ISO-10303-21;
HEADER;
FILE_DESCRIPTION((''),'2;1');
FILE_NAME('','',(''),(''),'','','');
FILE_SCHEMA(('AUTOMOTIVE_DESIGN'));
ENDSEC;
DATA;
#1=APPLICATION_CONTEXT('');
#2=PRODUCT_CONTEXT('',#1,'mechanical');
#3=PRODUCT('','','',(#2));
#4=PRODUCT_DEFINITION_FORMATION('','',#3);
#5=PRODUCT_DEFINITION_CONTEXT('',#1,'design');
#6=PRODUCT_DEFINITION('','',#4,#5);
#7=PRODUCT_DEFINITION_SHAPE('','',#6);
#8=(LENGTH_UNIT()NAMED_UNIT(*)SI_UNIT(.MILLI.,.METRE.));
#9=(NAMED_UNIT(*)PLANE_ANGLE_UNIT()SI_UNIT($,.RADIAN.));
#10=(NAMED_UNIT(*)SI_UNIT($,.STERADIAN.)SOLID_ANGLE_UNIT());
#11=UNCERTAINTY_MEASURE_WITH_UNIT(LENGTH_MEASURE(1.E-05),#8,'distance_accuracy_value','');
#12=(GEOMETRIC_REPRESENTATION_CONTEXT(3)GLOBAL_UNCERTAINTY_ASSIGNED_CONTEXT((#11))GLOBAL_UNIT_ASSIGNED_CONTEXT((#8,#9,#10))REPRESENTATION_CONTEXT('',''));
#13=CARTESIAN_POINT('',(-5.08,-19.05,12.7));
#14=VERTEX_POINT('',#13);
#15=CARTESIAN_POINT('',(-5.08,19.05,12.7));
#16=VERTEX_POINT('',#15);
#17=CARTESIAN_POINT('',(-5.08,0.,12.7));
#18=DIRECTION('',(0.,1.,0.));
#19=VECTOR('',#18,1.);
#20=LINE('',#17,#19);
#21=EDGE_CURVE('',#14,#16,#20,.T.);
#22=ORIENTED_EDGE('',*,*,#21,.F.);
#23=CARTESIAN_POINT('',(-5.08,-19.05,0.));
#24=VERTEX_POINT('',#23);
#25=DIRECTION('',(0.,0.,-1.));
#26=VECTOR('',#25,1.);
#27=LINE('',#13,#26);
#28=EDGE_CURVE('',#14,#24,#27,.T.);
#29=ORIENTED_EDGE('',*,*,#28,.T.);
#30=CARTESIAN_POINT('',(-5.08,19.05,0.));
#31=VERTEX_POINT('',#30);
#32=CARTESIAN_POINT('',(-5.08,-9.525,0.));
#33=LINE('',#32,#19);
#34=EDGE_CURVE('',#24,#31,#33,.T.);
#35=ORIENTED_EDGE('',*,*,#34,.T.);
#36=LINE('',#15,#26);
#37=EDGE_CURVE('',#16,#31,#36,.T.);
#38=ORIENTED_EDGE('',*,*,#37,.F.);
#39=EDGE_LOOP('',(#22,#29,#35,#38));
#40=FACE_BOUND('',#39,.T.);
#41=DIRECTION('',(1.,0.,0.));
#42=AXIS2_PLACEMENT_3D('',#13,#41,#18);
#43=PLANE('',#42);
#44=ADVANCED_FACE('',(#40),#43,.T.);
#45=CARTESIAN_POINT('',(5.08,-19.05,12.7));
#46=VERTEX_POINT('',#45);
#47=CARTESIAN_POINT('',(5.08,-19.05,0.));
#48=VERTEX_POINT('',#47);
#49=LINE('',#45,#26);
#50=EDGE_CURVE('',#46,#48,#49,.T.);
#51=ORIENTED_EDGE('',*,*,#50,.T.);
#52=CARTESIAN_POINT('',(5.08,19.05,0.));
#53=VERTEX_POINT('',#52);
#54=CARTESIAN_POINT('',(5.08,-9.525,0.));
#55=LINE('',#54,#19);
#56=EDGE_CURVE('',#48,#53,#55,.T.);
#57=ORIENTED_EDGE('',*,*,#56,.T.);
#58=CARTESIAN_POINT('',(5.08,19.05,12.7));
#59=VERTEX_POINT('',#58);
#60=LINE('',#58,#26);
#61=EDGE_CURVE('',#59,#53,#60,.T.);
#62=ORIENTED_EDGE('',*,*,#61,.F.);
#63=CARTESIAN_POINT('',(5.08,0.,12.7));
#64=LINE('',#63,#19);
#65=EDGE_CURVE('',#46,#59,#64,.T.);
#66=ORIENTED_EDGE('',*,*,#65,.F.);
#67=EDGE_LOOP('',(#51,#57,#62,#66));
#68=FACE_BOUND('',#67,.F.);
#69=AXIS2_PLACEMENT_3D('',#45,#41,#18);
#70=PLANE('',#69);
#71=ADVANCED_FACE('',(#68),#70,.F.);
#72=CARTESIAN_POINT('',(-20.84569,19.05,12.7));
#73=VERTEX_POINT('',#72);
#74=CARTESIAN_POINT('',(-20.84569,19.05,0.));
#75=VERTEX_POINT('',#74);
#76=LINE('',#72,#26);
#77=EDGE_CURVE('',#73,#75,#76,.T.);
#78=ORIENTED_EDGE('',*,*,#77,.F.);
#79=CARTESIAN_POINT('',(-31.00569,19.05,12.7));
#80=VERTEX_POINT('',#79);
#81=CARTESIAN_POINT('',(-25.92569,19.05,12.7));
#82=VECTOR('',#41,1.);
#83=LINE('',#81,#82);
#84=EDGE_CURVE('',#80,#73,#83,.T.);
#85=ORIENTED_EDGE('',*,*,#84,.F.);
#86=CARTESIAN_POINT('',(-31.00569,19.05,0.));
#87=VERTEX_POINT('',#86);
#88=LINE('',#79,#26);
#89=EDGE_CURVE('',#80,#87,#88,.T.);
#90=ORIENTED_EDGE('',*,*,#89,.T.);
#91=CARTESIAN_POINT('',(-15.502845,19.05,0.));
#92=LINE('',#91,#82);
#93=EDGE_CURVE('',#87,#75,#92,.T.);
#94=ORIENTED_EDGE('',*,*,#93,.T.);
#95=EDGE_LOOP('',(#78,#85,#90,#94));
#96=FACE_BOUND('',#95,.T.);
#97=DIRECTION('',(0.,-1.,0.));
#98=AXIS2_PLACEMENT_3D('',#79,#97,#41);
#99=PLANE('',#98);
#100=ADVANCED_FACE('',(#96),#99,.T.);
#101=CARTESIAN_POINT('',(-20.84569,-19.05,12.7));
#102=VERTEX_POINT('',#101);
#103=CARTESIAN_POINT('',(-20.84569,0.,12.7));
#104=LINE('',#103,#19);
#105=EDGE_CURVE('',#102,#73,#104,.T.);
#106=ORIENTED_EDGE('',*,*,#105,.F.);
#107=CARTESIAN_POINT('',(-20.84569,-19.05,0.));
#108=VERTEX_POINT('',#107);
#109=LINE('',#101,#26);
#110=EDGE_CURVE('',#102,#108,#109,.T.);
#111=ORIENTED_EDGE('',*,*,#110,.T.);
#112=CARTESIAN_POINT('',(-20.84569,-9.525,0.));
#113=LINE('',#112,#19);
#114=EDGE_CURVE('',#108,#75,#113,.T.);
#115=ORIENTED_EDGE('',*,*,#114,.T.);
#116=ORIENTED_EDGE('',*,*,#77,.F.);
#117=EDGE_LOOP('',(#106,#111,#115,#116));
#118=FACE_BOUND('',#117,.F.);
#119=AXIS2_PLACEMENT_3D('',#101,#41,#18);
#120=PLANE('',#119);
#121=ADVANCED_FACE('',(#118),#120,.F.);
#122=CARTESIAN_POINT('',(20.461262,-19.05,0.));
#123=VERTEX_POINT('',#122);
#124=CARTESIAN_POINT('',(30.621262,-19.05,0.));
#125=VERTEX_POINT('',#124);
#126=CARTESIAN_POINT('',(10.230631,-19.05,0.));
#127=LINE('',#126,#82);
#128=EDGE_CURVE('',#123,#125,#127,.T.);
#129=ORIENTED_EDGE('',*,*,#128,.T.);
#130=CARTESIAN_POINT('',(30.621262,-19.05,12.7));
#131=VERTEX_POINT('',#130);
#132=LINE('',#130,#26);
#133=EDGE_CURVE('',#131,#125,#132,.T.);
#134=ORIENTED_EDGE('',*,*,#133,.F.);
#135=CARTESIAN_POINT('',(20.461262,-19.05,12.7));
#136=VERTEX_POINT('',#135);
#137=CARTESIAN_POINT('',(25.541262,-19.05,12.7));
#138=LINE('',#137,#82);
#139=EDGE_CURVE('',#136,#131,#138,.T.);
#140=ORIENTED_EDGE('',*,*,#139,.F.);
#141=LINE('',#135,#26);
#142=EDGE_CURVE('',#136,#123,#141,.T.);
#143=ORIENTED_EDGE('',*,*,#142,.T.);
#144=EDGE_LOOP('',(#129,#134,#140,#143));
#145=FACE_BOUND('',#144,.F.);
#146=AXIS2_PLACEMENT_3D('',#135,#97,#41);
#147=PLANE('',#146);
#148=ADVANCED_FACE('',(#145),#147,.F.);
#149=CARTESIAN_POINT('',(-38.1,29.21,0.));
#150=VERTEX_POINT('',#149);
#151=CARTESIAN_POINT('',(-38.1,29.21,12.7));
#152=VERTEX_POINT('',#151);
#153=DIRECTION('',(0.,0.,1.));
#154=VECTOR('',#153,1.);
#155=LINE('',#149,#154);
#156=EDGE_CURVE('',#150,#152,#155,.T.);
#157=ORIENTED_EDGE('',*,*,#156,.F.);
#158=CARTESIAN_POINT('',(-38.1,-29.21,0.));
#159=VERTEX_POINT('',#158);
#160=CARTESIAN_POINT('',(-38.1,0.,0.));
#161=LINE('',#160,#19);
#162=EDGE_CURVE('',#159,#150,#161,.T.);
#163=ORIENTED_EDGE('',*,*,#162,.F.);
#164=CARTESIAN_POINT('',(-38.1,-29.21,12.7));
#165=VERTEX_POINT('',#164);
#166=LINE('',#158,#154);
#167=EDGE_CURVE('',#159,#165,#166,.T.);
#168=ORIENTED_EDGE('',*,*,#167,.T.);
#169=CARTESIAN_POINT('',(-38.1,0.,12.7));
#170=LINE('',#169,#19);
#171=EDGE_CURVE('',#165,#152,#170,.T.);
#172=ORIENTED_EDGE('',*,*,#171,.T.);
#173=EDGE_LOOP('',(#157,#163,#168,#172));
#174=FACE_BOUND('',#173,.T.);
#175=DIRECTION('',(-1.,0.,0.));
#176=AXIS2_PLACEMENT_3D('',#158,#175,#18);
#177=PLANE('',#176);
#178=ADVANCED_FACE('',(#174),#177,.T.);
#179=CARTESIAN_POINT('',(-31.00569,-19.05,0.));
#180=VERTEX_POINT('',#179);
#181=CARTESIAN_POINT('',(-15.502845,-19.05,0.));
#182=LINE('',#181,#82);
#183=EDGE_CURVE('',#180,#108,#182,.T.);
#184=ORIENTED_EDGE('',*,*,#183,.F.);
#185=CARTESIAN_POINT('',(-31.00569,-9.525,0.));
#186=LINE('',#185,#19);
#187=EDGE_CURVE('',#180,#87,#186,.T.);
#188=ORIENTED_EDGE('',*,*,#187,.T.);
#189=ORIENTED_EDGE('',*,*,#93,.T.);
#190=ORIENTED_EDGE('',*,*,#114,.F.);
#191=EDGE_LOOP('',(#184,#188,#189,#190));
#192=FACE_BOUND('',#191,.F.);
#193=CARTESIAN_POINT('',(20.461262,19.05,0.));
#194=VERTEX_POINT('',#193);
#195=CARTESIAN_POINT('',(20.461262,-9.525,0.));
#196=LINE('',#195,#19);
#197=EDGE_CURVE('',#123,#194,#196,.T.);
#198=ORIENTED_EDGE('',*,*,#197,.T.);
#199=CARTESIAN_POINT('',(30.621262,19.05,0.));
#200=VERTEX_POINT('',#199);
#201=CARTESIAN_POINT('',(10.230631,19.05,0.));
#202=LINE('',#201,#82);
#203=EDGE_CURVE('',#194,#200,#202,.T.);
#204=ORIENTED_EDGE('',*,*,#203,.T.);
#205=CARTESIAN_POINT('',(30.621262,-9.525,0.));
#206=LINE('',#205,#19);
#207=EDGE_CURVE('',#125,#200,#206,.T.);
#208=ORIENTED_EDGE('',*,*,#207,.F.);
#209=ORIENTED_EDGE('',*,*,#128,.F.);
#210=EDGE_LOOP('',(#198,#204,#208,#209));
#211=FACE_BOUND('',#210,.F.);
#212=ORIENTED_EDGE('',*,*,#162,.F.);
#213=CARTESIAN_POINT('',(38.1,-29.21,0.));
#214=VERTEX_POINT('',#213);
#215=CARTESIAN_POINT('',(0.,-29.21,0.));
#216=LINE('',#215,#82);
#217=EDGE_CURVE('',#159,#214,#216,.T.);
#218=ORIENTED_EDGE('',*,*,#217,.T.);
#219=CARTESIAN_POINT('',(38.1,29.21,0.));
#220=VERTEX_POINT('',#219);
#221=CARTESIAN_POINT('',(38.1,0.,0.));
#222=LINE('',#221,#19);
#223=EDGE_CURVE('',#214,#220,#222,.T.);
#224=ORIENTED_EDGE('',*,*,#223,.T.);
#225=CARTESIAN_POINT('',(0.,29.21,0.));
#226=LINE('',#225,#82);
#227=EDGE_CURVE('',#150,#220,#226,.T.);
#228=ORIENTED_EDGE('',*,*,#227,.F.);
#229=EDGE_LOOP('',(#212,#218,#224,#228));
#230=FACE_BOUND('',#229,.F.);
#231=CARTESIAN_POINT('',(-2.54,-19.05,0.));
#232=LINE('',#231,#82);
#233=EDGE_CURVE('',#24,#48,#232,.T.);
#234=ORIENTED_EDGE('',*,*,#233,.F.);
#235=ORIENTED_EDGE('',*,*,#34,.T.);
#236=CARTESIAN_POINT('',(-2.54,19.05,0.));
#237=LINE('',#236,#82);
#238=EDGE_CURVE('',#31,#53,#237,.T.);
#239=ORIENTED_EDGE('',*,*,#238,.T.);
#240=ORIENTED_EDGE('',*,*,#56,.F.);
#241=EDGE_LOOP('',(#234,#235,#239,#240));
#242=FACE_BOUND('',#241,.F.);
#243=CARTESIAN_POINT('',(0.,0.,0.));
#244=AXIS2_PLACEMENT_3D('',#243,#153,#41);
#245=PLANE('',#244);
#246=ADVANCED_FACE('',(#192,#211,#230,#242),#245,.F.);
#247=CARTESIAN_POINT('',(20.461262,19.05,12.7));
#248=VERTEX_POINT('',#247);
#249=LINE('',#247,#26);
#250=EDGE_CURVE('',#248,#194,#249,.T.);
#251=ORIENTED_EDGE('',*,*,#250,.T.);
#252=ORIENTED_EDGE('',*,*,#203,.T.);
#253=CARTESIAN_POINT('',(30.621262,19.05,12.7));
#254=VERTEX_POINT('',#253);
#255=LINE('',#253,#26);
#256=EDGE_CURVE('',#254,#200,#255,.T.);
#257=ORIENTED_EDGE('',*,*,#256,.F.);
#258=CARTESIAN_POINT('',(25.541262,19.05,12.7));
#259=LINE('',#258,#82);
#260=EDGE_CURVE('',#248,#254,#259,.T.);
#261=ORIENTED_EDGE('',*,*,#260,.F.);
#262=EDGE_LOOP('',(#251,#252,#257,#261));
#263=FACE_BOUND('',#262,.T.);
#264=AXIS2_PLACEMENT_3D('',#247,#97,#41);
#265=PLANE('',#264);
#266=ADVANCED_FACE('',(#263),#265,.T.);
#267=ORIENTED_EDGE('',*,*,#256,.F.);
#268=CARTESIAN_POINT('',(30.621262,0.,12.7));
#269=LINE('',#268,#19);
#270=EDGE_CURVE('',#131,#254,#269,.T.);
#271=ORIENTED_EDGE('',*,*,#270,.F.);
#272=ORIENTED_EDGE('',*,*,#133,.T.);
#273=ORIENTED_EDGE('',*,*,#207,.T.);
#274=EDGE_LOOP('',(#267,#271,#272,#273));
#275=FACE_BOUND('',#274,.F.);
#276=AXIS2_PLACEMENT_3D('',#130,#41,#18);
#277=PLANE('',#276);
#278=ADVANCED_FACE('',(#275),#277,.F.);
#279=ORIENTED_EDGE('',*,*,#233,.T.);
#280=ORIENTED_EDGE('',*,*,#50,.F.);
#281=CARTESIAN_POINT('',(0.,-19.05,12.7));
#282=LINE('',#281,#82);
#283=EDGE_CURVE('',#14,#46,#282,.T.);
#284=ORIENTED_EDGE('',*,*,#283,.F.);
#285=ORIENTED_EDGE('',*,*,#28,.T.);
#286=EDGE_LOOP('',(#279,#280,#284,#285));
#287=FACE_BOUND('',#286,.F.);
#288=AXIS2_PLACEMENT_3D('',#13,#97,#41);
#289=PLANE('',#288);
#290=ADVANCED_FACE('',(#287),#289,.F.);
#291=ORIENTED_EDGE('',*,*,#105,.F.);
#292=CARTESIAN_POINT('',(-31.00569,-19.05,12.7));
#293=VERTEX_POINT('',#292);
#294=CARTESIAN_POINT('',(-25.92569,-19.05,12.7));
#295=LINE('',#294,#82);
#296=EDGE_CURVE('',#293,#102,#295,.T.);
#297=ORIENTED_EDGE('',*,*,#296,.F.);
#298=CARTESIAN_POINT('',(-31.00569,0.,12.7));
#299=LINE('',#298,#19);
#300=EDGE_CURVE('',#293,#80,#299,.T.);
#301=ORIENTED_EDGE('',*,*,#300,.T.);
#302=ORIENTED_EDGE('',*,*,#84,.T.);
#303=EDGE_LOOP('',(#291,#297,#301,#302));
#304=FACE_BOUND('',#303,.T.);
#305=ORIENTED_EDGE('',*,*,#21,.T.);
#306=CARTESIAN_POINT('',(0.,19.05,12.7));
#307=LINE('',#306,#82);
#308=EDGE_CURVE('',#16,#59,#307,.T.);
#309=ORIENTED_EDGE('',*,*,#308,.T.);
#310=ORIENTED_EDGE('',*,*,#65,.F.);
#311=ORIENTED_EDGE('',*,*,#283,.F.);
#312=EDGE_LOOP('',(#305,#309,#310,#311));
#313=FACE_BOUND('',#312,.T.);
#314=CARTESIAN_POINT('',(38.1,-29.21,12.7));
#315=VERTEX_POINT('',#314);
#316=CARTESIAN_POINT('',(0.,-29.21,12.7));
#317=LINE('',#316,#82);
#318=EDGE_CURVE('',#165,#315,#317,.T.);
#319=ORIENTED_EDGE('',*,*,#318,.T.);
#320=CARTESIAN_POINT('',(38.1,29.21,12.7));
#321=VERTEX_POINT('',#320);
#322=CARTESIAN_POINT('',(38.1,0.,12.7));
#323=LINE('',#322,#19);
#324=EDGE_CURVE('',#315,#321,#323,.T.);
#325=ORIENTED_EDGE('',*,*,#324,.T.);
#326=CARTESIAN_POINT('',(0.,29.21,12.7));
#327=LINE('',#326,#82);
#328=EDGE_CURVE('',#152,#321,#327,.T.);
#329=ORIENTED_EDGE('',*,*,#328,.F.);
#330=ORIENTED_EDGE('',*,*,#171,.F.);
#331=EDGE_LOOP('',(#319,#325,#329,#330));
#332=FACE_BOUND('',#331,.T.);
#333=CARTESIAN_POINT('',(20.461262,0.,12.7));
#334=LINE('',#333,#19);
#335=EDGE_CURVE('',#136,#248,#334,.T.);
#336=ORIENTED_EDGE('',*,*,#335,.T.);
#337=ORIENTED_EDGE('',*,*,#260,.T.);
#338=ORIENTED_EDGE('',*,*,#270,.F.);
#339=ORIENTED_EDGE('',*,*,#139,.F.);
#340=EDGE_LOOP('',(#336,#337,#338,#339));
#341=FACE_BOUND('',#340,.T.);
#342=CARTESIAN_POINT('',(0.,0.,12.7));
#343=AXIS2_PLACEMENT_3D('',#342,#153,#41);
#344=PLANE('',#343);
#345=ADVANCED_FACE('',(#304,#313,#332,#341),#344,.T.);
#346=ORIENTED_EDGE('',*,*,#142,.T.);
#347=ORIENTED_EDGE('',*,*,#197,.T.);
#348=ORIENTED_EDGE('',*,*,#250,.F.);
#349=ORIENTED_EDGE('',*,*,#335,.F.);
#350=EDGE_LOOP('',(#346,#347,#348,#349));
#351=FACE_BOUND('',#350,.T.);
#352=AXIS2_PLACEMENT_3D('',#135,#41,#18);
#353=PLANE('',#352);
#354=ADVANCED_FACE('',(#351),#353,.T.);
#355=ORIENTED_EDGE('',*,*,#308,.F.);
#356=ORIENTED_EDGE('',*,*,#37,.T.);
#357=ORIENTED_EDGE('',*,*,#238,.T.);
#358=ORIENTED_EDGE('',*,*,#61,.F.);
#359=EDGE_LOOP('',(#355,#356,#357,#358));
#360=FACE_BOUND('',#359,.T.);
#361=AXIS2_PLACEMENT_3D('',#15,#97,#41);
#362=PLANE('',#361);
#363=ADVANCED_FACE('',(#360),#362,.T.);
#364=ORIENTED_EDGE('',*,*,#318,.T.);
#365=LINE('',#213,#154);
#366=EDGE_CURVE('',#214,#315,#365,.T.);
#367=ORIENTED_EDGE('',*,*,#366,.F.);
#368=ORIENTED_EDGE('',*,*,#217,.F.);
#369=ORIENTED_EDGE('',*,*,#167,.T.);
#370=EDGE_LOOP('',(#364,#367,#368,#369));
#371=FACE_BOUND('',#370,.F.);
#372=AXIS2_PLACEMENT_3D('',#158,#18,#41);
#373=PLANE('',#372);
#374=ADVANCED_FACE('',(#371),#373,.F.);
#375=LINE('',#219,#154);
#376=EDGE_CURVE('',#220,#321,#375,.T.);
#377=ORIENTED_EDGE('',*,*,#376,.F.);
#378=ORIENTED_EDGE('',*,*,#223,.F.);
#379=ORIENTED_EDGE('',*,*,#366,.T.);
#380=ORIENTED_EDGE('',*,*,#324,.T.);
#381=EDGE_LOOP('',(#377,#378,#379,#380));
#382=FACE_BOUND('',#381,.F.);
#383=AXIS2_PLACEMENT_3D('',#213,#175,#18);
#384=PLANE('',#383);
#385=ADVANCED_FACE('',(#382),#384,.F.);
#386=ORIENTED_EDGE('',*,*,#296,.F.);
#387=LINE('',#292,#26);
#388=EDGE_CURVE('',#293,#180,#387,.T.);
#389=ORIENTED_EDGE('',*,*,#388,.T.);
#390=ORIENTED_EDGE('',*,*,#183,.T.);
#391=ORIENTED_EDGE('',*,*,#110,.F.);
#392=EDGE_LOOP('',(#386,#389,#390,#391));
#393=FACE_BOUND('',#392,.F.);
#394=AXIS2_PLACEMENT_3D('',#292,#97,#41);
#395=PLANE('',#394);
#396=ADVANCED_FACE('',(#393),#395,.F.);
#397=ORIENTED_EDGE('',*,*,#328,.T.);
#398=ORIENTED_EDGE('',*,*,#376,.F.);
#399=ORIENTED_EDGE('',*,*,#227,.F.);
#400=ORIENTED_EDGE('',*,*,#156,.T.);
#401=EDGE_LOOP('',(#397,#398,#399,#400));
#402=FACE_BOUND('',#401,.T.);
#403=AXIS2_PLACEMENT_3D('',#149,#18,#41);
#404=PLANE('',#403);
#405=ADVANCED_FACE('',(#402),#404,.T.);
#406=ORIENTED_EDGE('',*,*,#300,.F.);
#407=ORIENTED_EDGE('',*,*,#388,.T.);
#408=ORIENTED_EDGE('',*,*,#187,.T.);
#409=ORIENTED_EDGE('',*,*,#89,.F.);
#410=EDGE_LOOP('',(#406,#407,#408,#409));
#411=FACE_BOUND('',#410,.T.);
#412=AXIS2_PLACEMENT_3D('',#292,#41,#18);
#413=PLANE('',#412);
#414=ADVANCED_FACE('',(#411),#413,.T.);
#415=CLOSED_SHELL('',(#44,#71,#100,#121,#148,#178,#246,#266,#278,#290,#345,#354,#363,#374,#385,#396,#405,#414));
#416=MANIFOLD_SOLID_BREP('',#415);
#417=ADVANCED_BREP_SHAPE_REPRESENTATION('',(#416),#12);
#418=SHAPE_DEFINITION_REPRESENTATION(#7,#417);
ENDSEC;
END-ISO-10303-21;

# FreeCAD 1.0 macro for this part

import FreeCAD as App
import Part
import Sketcher
from FreeCAD import Vector
Q = App.Units.Quantity

doc = App.newDocument("Part")
body = doc.addObject("PartDesign::Body", "Body")

sketch1 = body.newObject("Sketcher::SketchObject", "Sketch")
sketch1.AttachmentSupport = (doc.getObject("XY_Plane"), [""])
sketch1.MapMode = "FlatFace"
sketch1.addGeometry(Part.LineSegment(Vector(-38, 29, 0), Vector(-38, -29, 0)), False)
sketch1.addGeometry(Part.LineSegment(Vector(-38, -29, 0), Vector(38, -29, 0)), False)
sketch1.addGeometry(Part.LineSegment(Vector(38, -29, 0), Vector(38, 29, 0)), False)
sketch1.addGeometry(Part.LineSegment(Vector(38, 29, 0), Vector(-38, 29, 0)), False)
sketch1.addConstraint(Sketcher.Constraint("Coincident", 0, 2, 1, 1))
sketch1.addConstraint(Sketcher.Constraint("Coincident", 1, 2, 2, 1))
sketch1.addConstraint(Sketcher.Constraint("Coincident", 2, 2, 3, 1))
sketch1.addConstraint(Sketcher.Constraint("Coincident", 3, 2, 0, 1))
sketch1.addConstraint(Sketcher.Constraint("Vertical", 0))
sketch1.addConstraint(Sketcher.Constraint("Horizontal", 1))
sketch1.addConstraint(Sketcher.Constraint("Vertical", 2))
sketch1.addConstraint(Sketcher.Constraint("Horizontal", 3))
sketch1.addConstraint(Sketcher.Constraint("Symmetric", 0, 2, 2, 2, -1, 1))
sketch1.addConstraint(Sketcher.Constraint("DistanceX", 1, 1, 1, 2, Q("3 in")))
sketch1.addConstraint(Sketcher.Constraint("DistanceY", 0, 2, 0, 1, Q("2.3 in")))
pad1 = body.newObject("PartDesign::Pad", "Pad")
pad1.Profile = sketch1
pad1.Length = Q("0.5 in")

sketch2 = body.newObject("Sketcher::SketchObject", "Sketch001")
sketch2.AttachmentSupport = (doc.getObject("XY_Plane"), [""])
sketch2.MapMode = "FlatFace"
sketch2.AttachmentOffset = App.Placement(Vector(0, 0, 0.5 * 25.4), App.Rotation())
sketch2.addGeometry(Part.LineSegment(Vector(-5, 19, 0), Vector(-5, -19, 0)), False)
sketch2.addGeometry(Part.LineSegment(Vector(-5, -19, 0), Vector(5, -19, 0)), False)
sketch2.addGeometry(Part.LineSegment(Vector(5, -19, 0), Vector(5, 19, 0)), False)
sketch2.addGeometry(Part.LineSegment(Vector(5, 19, 0), Vector(-5, 19, 0)), False)
sketch2.addGeometry(Part.LineSegment(Vector(20, 19, 0), Vector(20, -19, 0)), False)
sketch2.addGeometry(Part.LineSegment(Vector(20, -19, 0), Vector(31, -19, 0)), False)
sketch2.addGeometry(Part.LineSegment(Vector(31, -19, 0), Vector(31, 19, 0)), False)
sketch2.addGeometry(Part.LineSegment(Vector(31, 19, 0), Vector(20, 19, 0)), False)
sketch2.addGeometry(Part.LineSegment(Vector(-31, 19, 0), Vector(-31, -19, 0)), False)
sketch2.addGeometry(Part.LineSegment(Vector(-31, -19, 0), Vector(-21, -19, 0)), False)
sketch2.addGeometry(Part.LineSegment(Vector(-21, -19, 0), Vector(-21, 19, 0)), False)
sketch2.addGeometry(Part.LineSegment(Vector(-21, 19, 0), Vector(-31, 19, 0)), False)
sketch2.addConstraint(Sketcher.Constraint("Coincident", 0, 2, 1, 1))
sketch2.addConstraint(Sketcher.Constraint("Coincident", 1, 2, 2, 1))
sketch2.addConstraint(Sketcher.Constraint("Coincident", 2, 2, 3, 1))
sketch2.addConstraint(Sketcher.Constraint("Coincident", 3, 2, 0, 1))
sketch2.addConstraint(Sketcher.Constraint("Coincident", 4, 2, 5, 1))
sketch2.addConstraint(Sketcher.Constraint("Coincident", 5, 2, 6, 1))
sketch2.addConstraint(Sketcher.Constraint("Coincident", 6, 2, 7, 1))
sketch2.addConstraint(Sketcher.Constraint("Coincident", 7, 2, 4, 1))
sketch2.addConstraint(Sketcher.Constraint("Coincident", 8, 2, 9, 1))
sketch2.addConstraint(Sketcher.Constraint("Coincident", 9, 2, 10, 1))
sketch2.addConstraint(Sketcher.Constraint("Coincident", 10, 2, 11, 1))
sketch2.addConstraint(Sketcher.Constraint("Coincident", 11, 2, 8, 1))
sketch2.addConstraint(Sketcher.Constraint("Vertical", 0))
sketch2.addConstraint(Sketcher.Constraint("Horizontal", 1))
sketch2.addConstraint(Sketcher.Constraint("Vertical", 2))
sketch2.addConstraint(Sketcher.Constraint("Horizontal", 3))
sketch2.addConstraint(Sketcher.Constraint("Vertical", 4))
sketch2.addConstraint(Sketcher.Constraint("Horizontal", 5))
sketch2.addConstraint(Sketcher.Constraint("Vertical", 6))
sketch2.addConstraint(Sketcher.Constraint("Horizontal", 7))
sketch2.addConstraint(Sketcher.Constraint("Vertical", 8))
sketch2.addConstraint(Sketcher.Constraint("Horizontal", 9))
sketch2.addConstraint(Sketcher.Constraint("Vertical", 10))
sketch2.addConstraint(Sketcher.Constraint("Horizontal", 11))
sketch2.addConstraint(Sketcher.Constraint("Symmetric", 0, 2, 2, 2, -1, 1))
sketch2.addConstraint(Sketcher.Constraint("Horizontal", 1, 2, 4, 2))
sketch2.addConstraint(Sketcher.Constraint("Horizontal", 3, 2, 6, 2))
sketch2.addConstraint(Sketcher.Constraint("Horizontal", 5, 2, 8, 2))
sketch2.addConstraint(Sketcher.Constraint("Horizontal", 7, 2, 10, 2))
sketch2.addConstraint(Sketcher.Constraint("Equal", 3, 5))
sketch2.addConstraint(Sketcher.Constraint("Equal", 7, 9))
sketch2.addConstraint(Sketcher.Constraint("DistanceX", 1, 1, 1, 2, Q("0.4 in")))
sketch2.addConstraint(Sketcher.Constraint("DistanceY", 0, 2, 0, 1, Q("1.5 in")))
sketch2.addConstraint(Sketcher.Constraint("DistanceX", 8, 2, -1, 1, Q("31.00569 mm")))
sketch2.addConstraint(Sketcher.Constraint("DistanceX", -1, 1, 4, 2, Q("20.461262 mm")))
pocket1 = body.newObject("PartDesign::Pocket", "Pocket")
pocket1.Profile = sketch2
pocket1.Type = "ThroughAll"

doc.recompute()
